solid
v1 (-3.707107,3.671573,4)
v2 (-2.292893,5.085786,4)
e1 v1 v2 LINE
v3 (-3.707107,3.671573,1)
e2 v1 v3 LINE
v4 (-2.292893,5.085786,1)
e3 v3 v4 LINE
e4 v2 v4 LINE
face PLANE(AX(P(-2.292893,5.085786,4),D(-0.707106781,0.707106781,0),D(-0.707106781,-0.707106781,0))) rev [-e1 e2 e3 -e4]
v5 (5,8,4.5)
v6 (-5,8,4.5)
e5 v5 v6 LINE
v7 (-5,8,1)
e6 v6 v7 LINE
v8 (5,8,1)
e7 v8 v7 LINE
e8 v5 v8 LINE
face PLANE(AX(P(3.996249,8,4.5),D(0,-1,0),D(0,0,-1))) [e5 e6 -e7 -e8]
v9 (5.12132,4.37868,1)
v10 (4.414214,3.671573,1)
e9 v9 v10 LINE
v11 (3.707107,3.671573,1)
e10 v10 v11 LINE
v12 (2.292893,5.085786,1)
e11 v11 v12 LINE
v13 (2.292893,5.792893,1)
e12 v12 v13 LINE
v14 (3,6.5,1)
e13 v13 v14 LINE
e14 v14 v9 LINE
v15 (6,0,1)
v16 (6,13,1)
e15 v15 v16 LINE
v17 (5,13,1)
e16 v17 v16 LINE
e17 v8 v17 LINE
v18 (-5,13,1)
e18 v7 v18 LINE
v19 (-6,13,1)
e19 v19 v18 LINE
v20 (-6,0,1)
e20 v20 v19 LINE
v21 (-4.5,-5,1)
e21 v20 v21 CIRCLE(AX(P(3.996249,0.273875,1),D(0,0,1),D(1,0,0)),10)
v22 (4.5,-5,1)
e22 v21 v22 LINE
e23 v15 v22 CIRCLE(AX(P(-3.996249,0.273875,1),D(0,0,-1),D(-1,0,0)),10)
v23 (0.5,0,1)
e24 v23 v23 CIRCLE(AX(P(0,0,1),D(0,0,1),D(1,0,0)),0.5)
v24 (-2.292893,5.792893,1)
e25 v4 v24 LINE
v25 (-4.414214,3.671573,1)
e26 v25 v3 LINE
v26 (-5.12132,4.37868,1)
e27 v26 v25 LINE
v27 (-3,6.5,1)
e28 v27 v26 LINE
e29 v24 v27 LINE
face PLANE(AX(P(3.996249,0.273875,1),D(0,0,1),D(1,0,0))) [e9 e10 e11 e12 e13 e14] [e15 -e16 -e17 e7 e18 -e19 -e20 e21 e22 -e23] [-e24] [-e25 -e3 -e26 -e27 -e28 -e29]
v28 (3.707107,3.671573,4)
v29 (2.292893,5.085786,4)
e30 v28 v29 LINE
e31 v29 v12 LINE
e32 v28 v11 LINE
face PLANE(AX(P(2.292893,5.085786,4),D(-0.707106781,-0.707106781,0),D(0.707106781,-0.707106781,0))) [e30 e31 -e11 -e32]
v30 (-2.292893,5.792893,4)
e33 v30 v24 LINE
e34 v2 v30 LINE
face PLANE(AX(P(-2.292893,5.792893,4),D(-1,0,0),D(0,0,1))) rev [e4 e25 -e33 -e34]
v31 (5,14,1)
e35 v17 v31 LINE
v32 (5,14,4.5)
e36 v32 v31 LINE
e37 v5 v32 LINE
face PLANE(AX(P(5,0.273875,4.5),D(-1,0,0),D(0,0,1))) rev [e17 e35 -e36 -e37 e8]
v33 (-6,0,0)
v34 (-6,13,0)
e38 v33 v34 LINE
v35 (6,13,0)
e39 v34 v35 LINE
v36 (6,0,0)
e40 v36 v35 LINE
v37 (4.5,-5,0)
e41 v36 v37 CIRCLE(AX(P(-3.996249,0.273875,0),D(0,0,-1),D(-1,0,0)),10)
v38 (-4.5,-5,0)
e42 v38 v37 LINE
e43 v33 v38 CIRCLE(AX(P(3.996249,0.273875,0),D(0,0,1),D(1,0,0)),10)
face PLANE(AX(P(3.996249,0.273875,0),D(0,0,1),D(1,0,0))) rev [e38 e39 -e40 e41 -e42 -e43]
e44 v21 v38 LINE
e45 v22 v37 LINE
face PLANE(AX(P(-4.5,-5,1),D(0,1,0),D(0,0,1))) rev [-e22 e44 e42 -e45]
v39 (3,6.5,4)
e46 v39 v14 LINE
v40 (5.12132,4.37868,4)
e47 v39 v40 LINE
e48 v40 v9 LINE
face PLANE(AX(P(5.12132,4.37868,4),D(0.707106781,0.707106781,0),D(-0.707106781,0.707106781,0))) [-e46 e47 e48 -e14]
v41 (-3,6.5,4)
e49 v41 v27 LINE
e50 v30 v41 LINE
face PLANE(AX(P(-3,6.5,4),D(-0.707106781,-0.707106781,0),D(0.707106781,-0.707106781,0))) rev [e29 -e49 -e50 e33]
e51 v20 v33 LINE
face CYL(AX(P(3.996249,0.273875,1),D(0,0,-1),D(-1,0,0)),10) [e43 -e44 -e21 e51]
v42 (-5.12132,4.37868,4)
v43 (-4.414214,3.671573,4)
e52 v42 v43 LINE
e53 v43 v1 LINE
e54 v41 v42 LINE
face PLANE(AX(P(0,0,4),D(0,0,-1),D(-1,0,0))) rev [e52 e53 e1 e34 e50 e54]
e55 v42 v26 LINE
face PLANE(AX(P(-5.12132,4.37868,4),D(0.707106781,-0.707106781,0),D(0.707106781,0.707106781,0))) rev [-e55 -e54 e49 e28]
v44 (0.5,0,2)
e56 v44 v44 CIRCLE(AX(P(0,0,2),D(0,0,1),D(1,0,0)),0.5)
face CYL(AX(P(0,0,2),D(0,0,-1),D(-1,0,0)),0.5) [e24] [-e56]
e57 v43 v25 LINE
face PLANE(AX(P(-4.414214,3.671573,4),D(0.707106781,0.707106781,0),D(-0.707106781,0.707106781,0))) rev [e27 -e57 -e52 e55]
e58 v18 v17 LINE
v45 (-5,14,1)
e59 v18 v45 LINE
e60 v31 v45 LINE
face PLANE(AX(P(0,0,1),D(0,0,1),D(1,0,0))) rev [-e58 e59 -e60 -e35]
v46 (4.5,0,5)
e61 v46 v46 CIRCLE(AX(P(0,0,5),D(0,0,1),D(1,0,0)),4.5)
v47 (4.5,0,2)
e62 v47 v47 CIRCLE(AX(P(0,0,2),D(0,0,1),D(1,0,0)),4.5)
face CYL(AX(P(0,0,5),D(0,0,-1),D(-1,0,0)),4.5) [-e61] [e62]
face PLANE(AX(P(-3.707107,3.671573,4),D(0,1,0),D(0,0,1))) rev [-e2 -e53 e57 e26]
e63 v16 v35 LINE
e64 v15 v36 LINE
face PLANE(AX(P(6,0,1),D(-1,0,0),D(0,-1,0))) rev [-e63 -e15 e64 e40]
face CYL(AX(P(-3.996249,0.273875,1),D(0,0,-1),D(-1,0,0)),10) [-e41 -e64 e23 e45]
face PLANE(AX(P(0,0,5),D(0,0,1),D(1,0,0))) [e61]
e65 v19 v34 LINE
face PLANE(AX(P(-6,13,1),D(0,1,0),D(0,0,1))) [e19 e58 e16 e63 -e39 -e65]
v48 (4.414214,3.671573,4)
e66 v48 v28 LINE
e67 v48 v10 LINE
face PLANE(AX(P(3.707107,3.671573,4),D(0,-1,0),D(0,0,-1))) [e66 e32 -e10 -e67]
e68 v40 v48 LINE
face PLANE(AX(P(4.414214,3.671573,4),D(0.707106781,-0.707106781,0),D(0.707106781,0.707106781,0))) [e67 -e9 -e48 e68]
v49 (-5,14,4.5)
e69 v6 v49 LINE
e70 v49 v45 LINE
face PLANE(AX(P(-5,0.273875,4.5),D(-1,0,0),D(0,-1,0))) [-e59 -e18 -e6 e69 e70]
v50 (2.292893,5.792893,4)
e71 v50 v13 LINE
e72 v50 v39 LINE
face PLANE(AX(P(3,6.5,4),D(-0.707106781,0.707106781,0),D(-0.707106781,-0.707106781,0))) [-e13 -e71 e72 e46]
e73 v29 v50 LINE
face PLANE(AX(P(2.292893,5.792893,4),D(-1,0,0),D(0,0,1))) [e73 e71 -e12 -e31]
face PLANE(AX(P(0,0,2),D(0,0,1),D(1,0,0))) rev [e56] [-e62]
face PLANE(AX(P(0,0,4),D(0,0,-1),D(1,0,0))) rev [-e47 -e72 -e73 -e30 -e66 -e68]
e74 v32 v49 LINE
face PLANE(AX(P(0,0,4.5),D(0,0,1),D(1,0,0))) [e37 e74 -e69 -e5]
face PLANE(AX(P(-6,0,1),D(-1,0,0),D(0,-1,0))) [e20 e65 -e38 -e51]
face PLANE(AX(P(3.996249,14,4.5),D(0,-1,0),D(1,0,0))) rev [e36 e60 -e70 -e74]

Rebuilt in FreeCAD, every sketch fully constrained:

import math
import FreeCAD as App
import Part
import Sketcher
from FreeCAD import Vector
Q = App.Units.Quantity

doc = App.newDocument("Part")
body = doc.addObject("PartDesign::Body", "Body")

sketch1 = body.newObject("Sketcher::SketchObject", "Sketch")
sketch1.AttachmentSupport = (doc.getObject("XY_Plane"), [""])
sketch1.MapMode = "FlatFace"
sketch1.addGeometry(Part.LineSegment(Vector(-6, 13, 0), Vector(-6, 0, 0)), False)
sketch1.addGeometry(Part.ArcOfCircle(Part.Circle(Vector(3.996249, 0.273875, 0), Vector(0, 0, 1), 10), math.radians(-178.430617), math.radians(-148.170894)), False)
sketch1.addGeometry(Part.LineSegment(Vector(-4.5, -5, 0), Vector(4.5, -5, 0)), False)
sketch1.addGeometry(Part.ArcOfCircle(Part.Circle(Vector(-3.996249, 0.273875, 0), Vector(0, 0, 1), 10), math.radians(-31.829106), math.radians(-1.569383)), False)
sketch1.addGeometry(Part.LineSegment(Vector(6, 0, 0), Vector(6, 13, 0)), False)
sketch1.addGeometry(Part.LineSegment(Vector(6, 13, 0), Vector(-6, 13, 0)), False)
sketch1.addConstraint(Sketcher.Constraint("Coincident", 0, 2, 1, 1))
sketch1.addConstraint(Sketcher.Constraint("Coincident", 1, 2, 2, 1))
sketch1.addConstraint(Sketcher.Constraint("Coincident", 2, 2, 3, 1))
sketch1.addConstraint(Sketcher.Constraint("Coincident", 3, 2, 4, 1))
sketch1.addConstraint(Sketcher.Constraint("Coincident", 4, 2, 5, 1))
sketch1.addConstraint(Sketcher.Constraint("Coincident", 5, 2, 0, 1))
sketch1.addConstraint(Sketcher.Constraint("Vertical", 0))
sketch1.addConstraint(Sketcher.Constraint("Horizontal", 2))
sketch1.addConstraint(Sketcher.Constraint("Vertical", 4))
sketch1.addConstraint(Sketcher.Constraint("Horizontal", 5))
sketch1.addConstraint(Sketcher.Constraint("Equal", 1, 3))
sketch1.addConstraint(Sketcher.Constraint("Symmetric", 0, 2, 3, 2, -1, 1))
sketch1.addConstraint(Sketcher.Constraint("Symmetric", 1, 3, 3, 3, -2))
sketch1.addConstraint(Sketcher.Constraint("Radius", 1, Q("10 mm")))
sketch1.addConstraint(Sketcher.Constraint("DistanceX", 2, 1, 2, 2, Q("9 mm")))
sketch1.addConstraint(Sketcher.Constraint("DistanceX", 5, 2, 5, 1, Q("12 mm")))
sketch1.addConstraint(Sketcher.Constraint("DistanceY", 0, 2, 0, 1, Q("13 mm")))
sketch1.addConstraint(Sketcher.Constraint("DistanceY", 1, 2, -1, 1, Q("5 mm")))
pad1 = body.newObject("PartDesign::Pad", "Pad")
pad1.Profile = sketch1
pad1.Length = 1

sketch2 = body.newObject("Sketcher::SketchObject", "Sketch001")
sketch2.AttachmentSupport = (doc.getObject("XY_Plane"), [""])
sketch2.MapMode = "FlatFace"
sketch2.AttachmentOffset = App.Placement(Vector(0, 0, 1), App.Rotation())
sketch2.addGeometry(Part.ArcOfCircle(Part.Circle(Vector(0, 0, 0), Vector(0, 0, 1), 0.5), math.radians(90), math.radians(270)), False)
sketch2.addGeometry(Part.ArcOfCircle(Part.Circle(Vector(0, 0, 0), Vector(0, 0, 1), 0.5), math.radians(-90), math.radians(0)), False)
sketch2.addGeometry(Part.ArcOfCircle(Part.Circle(Vector(0, 0, 0), Vector(0, 0, 1), 0.5), math.radians(0), math.radians(90)), False)
sketch2.addConstraint(Sketcher.Constraint("Tangent", 0, 2, 1, 1))
sketch2.addConstraint(Sketcher.Constraint("Tangent", 1, 2, 2, 1))
sketch2.addConstraint(Sketcher.Constraint("Tangent", 2, 2, 0, 1))
sketch2.addConstraint(Sketcher.Constraint("Coincident", 0, 3, -1, 1))
sketch2.addConstraint(Sketcher.Constraint("PointOnObject", 0, 2, -2))
sketch2.addConstraint(Sketcher.Constraint("PointOnObject", 1, 2, -1))
sketch2.addConstraint(Sketcher.Constraint("PointOnObject", 2, 2, -2))
sketch2.addConstraint(Sketcher.Constraint("Radius", 0, Q("0.5 mm")))
pad2 = body.newObject("PartDesign::Pad", "Pad001")
pad2.Profile = sketch2
pad2.Length = 1

sketch3 = body.newObject("Sketcher::SketchObject", "Sketch002")
sketch3.AttachmentSupport = (doc.getObject("XY_Plane"), [""])
sketch3.MapMode = "FlatFace"
sketch3.AttachmentOffset = App.Placement(Vector(0, 0, 2), App.Rotation())
sketch3.addGeometry(Part.ArcOfCircle(Part.Circle(Vector(0, 0, 0), Vector(0, 0, 1), 4.5), math.radians(90), math.radians(270)), False)
sketch3.addGeometry(Part.ArcOfCircle(Part.Circle(Vector(0, 0, 0), Vector(0, 0, 1), 4.5), math.radians(-90), math.radians(0)), False)
sketch3.addGeometry(Part.ArcOfCircle(Part.Circle(Vector(0, 0, 0), Vector(0, 0, 1), 4.5), math.radians(0), math.radians(90)), False)
sketch3.addConstraint(Sketcher.Constraint("Tangent", 0, 2, 1, 1))
sketch3.addConstraint(Sketcher.Constraint("Tangent", 1, 2, 2, 1))
sketch3.addConstraint(Sketcher.Constraint("Tangent", 2, 2, 0, 1))
sketch3.addConstraint(Sketcher.Constraint("Coincident", 0, 3, -1, 1))
sketch3.addConstraint(Sketcher.Constraint("PointOnObject", 0, 2, -2))
sketch3.addConstraint(Sketcher.Constraint("PointOnObject", 1, 2, -1))
sketch3.addConstraint(Sketcher.Constraint("PointOnObject", 2, 2, -2))
sketch3.addConstraint(Sketcher.Constraint("Radius", 0, Q("4.5 mm")))
pad3 = body.newObject("PartDesign::Pad", "Pad002")
pad3.Profile = sketch3
pad3.Length = 3

sketch4 = body.newObject("Sketcher::SketchObject", "Sketch003")
sketch4.AttachmentSupport = (doc.getObject("XY_Plane"), [""])
sketch4.MapMode = "FlatFace"
sketch4.AttachmentOffset = App.Placement(Vector(0, 0, 1), App.Rotation())
sketch4.addGeometry(Part.LineSegment(Vector(-5, 14, 0), Vector(-5, 8, 0)), False)
sketch4.addGeometry(Part.LineSegment(Vector(-5, 8, 0), Vector(5, 8, 0)), False)
sketch4.addGeometry(Part.LineSegment(Vector(5, 8, 0), Vector(5, 14, 0)), False)
sketch4.addGeometry(Part.LineSegment(Vector(5, 14, 0), Vector(-5, 14, 0)), False)
sketch4.addConstraint(Sketcher.Constraint("Coincident", 0, 2, 1, 1))
sketch4.addConstraint(Sketcher.Constraint("Coincident", 1, 2, 2, 1))
sketch4.addConstraint(Sketcher.Constraint("Coincident", 2, 2, 3, 1))
sketch4.addConstraint(Sketcher.Constraint("Coincident", 3, 2, 0, 1))
sketch4.addConstraint(Sketcher.Constraint("Vertical", 0))
sketch4.addConstraint(Sketcher.Constraint("Horizontal", 1))
sketch4.addConstraint(Sketcher.Constraint("Vertical", 2))
sketch4.addConstraint(Sketcher.Constraint("Horizontal", 3))
sketch4.addConstraint(Sketcher.Constraint("DistanceX", 1, 1, 1, 2, Q("10 mm")))
sketch4.addConstraint(Sketcher.Constraint("DistanceY", 0, 2, 0, 1, Q("6 mm")))
sketch4.addConstraint(Sketcher.Constraint("DistanceX", 0, 2, -1, 1, Q("5 mm")))
sketch4.addConstraint(Sketcher.Constraint("DistanceY", -1, 1, 0, 2, Q("8 mm")))
pad4 = body.newObject("PartDesign::Pad", "Pad003")
pad4.Profile = sketch4
pad4.Length = 3.5

sketch5 = body.newObject("Sketcher::SketchObject", "Sketch004")
sketch5.AttachmentSupport = (doc.getObject("XY_Plane"), [""])
sketch5.MapMode = "FlatFace"
sketch5.AttachmentOffset = App.Placement(Vector(0, 0, 1), App.Rotation())
sketch5.addGeometry(Part.LineSegment(Vector(-3, 6.5, 0), Vector(-5.1, 4.4, 0)), False)
sketch5.addGeometry(Part.LineSegment(Vector(-5.1, 4.4, 0), Vector(-4.4, 3.7, 0)), False)
sketch5.addGeometry(Part.LineSegment(Vector(-4.4, 3.7, 0), Vector(-3.7, 3.7, 0)), False)
sketch5.addGeometry(Part.LineSegment(Vector(-3.7, 3.7, 0), Vector(-2.3, 5.1, 0)), False)
sketch5.addGeometry(Part.LineSegment(Vector(-2.3, 5.1, 0), Vector(-2.3, 5.8, 0)), False)
sketch5.addGeometry(Part.LineSegment(Vector(-2.3, 5.8, 0), Vector(-3, 6.5, 0)), False)
sketch5.addConstraint(Sketcher.Constraint("Coincident", 0, 2, 1, 1))
sketch5.addConstraint(Sketcher.Constraint("Coincident", 1, 2, 2, 1))
sketch5.addConstraint(Sketcher.Constraint("Coincident", 2, 2, 3, 1))
sketch5.addConstraint(Sketcher.Constraint("Coincident", 3, 2, 4, 1))
sketch5.addConstraint(Sketcher.Constraint("Coincident", 4, 2, 5, 1))
sketch5.addConstraint(Sketcher.Constraint("Coincident", 5, 2, 0, 1))
sketch5.addConstraint(Sketcher.Constraint("Horizontal", 2))
sketch5.addConstraint(Sketcher.Constraint("Vertical", 4))
sketch5.addConstraint(Sketcher.Constraint("Perpendicular", 0, 1))
sketch5.addConstraint(Sketcher.Constraint("Perpendicular", 1, 3))
sketch5.addConstraint(Sketcher.Constraint("Perpendicular", 3, 5))
sketch5.addConstraint(Sketcher.Constraint("Equal", 2, 4))
sketch5.addConstraint(Sketcher.Constraint("Equal", 1, 5))
sketch5.addConstraint(Sketcher.Constraint("Distance", 0, Q("3 mm")))
sketch5.addConstraint(Sketcher.Constraint("Distance", 1, Q("1 mm")))
sketch5.addConstraint(Sketcher.Constraint("Distance", 3, Q("2 mm")))
sketch5.addConstraint(Sketcher.Constraint("DistanceX", 5, 2, -1, 1, Q("3 mm")))
sketch5.addConstraint(Sketcher.Constraint("DistanceY", -1, 1, 5, 2, Q("6.5 mm")))
pad5 = body.newObject("PartDesign::Pad", "Pad004")
pad5.Profile = sketch5
pad5.Length = 3
doc.recompute()

mirrored = body.newObject("PartDesign::Mirrored", "Mirrored")
mirrored.Originals = [pad5]
mirrored.MirrorPlane = (doc.getObject("YZ_Plane"), [""])
body.Tip = mirrored

doc.recompute()
